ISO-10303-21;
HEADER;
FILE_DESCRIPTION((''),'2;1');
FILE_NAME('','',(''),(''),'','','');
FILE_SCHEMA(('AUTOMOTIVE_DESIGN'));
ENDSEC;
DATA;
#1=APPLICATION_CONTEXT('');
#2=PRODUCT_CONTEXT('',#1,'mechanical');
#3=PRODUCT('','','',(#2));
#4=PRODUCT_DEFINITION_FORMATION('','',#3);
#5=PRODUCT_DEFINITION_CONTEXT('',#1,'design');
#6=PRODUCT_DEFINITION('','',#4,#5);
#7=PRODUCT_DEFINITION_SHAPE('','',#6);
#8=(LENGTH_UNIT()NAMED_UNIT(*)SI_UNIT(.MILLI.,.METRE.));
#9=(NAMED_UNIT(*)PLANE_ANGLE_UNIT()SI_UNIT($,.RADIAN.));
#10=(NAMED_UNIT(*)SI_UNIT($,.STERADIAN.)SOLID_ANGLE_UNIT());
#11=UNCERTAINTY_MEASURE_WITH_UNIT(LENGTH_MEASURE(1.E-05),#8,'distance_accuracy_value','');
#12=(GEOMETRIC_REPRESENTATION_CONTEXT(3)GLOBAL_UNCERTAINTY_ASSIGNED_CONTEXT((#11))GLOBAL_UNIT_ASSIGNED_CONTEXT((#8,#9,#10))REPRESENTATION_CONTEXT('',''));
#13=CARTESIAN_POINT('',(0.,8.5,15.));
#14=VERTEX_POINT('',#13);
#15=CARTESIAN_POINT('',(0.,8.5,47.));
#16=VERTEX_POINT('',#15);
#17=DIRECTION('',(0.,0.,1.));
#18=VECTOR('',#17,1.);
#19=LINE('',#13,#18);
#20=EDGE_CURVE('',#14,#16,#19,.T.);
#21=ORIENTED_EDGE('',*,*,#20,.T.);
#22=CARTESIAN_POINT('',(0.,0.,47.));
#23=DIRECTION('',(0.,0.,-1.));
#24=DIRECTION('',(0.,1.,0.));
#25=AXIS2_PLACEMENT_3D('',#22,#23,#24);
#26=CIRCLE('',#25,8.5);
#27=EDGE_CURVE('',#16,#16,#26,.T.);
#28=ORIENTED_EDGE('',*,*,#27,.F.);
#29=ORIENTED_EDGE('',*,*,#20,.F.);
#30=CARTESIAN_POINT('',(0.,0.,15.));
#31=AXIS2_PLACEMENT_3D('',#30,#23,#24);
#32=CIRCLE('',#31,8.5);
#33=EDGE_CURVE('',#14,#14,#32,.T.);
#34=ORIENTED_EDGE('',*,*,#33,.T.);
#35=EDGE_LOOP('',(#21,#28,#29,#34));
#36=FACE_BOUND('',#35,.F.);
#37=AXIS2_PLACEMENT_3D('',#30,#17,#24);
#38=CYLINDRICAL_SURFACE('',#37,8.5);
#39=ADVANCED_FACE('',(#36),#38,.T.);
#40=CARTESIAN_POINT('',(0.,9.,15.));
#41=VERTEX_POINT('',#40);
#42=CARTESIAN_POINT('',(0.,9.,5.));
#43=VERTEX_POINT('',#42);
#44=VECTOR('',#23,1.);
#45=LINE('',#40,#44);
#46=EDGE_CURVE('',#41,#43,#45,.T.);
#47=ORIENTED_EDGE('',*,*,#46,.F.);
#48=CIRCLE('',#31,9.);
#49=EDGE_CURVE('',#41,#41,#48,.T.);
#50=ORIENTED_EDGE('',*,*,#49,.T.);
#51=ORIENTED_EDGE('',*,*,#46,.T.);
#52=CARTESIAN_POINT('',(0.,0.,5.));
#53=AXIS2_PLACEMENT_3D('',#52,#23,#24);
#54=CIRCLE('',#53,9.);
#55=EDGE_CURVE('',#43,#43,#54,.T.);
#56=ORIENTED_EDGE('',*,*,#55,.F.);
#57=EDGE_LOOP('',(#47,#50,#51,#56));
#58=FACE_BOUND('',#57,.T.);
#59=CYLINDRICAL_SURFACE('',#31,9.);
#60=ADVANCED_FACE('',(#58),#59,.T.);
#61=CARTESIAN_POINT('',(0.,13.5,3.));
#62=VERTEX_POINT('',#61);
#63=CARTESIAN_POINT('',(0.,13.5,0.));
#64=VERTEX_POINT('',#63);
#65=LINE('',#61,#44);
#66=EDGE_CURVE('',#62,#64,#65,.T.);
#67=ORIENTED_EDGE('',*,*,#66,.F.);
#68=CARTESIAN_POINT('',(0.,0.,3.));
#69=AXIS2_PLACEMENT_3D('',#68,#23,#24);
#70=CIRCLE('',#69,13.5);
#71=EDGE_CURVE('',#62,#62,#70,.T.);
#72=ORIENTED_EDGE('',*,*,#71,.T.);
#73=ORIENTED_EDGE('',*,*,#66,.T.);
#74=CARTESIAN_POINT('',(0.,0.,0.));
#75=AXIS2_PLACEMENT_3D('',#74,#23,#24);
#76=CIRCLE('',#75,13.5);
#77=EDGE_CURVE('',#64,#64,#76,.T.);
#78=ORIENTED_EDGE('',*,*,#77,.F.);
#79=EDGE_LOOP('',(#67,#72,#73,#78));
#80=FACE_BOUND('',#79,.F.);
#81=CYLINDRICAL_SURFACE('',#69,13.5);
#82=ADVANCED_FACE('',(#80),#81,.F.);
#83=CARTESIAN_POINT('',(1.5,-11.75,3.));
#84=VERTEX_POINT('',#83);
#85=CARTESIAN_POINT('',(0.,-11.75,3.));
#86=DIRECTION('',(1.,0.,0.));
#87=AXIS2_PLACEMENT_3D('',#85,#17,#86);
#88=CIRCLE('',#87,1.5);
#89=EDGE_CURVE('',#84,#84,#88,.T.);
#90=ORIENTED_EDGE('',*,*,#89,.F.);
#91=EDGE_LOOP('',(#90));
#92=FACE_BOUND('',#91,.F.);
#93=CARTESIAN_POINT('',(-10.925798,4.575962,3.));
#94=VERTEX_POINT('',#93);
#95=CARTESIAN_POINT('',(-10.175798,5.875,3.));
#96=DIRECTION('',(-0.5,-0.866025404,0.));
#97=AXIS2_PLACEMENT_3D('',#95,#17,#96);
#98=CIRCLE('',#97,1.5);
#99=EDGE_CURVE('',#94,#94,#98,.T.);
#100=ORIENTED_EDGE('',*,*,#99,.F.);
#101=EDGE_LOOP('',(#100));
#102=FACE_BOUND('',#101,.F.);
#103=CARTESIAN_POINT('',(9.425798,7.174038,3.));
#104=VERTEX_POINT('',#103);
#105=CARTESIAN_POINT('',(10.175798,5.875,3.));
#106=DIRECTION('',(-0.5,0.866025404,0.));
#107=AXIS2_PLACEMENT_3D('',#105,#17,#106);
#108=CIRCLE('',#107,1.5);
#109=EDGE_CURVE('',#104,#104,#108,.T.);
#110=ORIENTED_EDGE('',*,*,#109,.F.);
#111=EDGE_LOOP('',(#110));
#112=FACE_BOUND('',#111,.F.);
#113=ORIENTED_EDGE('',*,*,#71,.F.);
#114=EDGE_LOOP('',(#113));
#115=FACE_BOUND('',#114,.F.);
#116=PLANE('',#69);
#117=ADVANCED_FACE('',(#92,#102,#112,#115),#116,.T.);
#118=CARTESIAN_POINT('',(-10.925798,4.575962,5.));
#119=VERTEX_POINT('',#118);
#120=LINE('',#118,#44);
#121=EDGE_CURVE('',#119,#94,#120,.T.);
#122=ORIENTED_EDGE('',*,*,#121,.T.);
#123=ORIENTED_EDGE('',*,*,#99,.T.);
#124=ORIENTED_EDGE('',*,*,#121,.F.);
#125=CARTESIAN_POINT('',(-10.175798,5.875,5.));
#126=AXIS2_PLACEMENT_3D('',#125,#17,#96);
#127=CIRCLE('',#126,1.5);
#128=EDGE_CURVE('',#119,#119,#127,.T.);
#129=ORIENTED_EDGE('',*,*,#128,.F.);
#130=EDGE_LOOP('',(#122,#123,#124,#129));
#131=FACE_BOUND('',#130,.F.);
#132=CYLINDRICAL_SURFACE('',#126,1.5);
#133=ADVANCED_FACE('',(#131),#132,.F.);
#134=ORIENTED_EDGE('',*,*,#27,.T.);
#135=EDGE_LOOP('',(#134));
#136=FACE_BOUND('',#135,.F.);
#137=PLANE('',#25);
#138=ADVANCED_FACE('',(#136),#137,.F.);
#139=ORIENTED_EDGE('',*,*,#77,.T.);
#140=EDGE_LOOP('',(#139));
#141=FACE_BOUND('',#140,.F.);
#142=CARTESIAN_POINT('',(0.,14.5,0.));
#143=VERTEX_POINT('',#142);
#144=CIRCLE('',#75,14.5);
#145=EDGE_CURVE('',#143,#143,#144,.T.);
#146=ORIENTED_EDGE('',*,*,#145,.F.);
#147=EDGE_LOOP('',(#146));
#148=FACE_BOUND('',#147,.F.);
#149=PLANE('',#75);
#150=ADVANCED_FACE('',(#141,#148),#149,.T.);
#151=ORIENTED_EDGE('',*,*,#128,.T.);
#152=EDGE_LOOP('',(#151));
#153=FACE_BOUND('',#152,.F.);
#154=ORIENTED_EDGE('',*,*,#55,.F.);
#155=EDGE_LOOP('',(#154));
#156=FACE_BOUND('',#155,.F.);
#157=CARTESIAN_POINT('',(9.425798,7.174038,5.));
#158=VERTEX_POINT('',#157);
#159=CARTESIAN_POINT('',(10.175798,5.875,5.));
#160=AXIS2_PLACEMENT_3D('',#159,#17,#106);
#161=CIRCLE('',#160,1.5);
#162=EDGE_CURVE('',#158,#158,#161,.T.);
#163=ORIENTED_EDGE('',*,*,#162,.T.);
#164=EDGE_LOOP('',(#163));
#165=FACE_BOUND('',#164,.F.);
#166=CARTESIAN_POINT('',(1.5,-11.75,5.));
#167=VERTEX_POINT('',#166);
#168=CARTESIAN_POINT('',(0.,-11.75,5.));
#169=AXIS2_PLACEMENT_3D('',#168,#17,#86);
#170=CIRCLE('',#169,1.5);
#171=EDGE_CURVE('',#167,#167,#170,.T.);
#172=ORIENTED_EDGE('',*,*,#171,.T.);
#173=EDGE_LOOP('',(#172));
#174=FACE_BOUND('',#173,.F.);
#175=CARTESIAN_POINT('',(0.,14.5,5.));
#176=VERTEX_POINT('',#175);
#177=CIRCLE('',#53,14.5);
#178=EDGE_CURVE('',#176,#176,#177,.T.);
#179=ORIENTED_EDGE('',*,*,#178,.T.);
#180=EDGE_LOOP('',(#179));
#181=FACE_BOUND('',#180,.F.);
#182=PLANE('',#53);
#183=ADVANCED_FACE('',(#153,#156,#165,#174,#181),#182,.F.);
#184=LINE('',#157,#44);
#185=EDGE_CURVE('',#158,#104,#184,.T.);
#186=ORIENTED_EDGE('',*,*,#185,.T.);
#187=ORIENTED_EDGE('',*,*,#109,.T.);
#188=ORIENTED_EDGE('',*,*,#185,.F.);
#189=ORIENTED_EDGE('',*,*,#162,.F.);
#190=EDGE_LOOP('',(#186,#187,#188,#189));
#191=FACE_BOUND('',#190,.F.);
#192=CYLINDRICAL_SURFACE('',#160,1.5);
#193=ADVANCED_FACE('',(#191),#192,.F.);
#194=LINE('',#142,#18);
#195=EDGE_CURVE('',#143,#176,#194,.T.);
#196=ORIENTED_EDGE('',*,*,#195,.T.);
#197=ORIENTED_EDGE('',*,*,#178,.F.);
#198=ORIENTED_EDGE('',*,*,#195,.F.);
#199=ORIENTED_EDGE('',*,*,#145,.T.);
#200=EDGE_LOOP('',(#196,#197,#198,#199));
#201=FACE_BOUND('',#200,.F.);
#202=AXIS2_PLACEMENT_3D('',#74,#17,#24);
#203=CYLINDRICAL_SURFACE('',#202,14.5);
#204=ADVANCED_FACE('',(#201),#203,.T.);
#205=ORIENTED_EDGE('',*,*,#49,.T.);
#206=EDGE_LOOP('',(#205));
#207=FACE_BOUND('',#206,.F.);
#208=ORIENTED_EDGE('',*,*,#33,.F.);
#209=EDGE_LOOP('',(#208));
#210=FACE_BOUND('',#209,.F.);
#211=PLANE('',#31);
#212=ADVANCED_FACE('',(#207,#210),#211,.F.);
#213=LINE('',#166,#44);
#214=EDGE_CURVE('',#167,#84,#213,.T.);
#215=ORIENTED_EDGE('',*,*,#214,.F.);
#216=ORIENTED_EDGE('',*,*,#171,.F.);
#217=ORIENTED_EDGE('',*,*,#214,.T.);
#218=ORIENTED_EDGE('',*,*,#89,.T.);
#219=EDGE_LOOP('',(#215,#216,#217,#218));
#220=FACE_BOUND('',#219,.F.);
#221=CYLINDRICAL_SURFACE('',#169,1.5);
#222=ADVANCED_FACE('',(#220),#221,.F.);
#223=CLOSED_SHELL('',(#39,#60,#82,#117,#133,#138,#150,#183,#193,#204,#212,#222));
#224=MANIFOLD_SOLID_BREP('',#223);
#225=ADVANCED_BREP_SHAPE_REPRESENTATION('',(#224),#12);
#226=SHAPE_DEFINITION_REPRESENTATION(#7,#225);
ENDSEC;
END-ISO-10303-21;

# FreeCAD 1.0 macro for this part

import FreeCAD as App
import Part
import Sketcher
from FreeCAD import Vector
Q = App.Units.Quantity


def add_polygon(sketch, points):
    """Adds a closed chain of lines whose ends are joined by coincident constraints."""
    first, n = sketch.GeometryCount, len(points)
    for a, b in zip(points, points[1:] + points[:1]):
        sketch.addGeometry(Part.LineSegment(App.Vector(*a, 0), App.Vector(*b, 0)), False)
    for i in range(n):
        sketch.addConstraint(Sketcher.Constraint("Coincident", first + i, 2, first + (i + 1) % n, 1))

doc = App.newDocument("Part")
body = doc.addObject("PartDesign::Body", "Body")

# Sketch on YZ plane
sketch1 = body.newObject("Sketcher::SketchObject", "Sketch")
sketch1.AttachmentSupport = (doc.getObject("YZ_Plane"), [""])
sketch1.MapMode = "FlatFace"
add_polygon(sketch1, [(0, 3), (13.5, 3), (13.5, 0), (14.5, 0), (14.5, 5), (9, 5), (9, 15), (8.5, 15), (8.5, 47), (0, 47)])  # lines 0-9
sketch1.addConstraint([
    Sketcher.Constraint("Horizontal", 0),
    Sketcher.Constraint("Vertical", 1),
    Sketcher.Constraint("Horizontal", 2),
    Sketcher.Constraint("Vertical", 3),
    Sketcher.Constraint("Horizontal", 4),
    Sketcher.Constraint("Vertical", 5),
    Sketcher.Constraint("Horizontal", 6),
    Sketcher.Constraint("Vertical", 7),
    Sketcher.Constraint("Horizontal", 8),
    Sketcher.Constraint("Vertical", 9),
    Sketcher.Constraint("PointOnObject", 1, 2, -1),
    Sketcher.Constraint("PointOnObject", 8, 2, -2),
    Sketcher.Constraint("DistanceX", 2, 1, 2, 2, Q("1 mm")),
    Sketcher.Constraint("DistanceY", 1, 2, 1, 1, Q("3 mm")),
    Sketcher.Constraint("DistanceY", 3, 1, 3, 2, Q("5 mm")),
    Sketcher.Constraint("DistanceY", 5, 1, 5, 2, Q("10 mm")),
    Sketcher.Constraint("DistanceY", 7, 1, 7, 2, Q("32 mm")),
    Sketcher.Constraint("DistanceX", 0, 1, 0, 2, Q("13.5 mm")),
    Sketcher.Constraint("DistanceX", 8, 2, 8, 1, Q("8.5 mm")),
    Sketcher.Constraint("DistanceX", -1, 1, 4, 2, Q("9 mm")),
])
revolution = body.newObject("PartDesign::Revolution", "Revolution")
revolution.Profile = sketch1
revolution.ReferenceAxis = (sketch1, ["V_Axis"])
revolution.Angle = 360

# Sketch on XY plane
sketch2 = body.newObject("Sketcher::SketchObject", "Sketch001")
sketch2.AttachmentSupport = (doc.getObject("XY_Plane"), [""])
sketch2.MapMode = "FlatFace"
sketch2.AttachmentOffset = App.Placement(Vector(0, 0, 5), App.Rotation())
sketch2.addGeometry(Part.Circle(Vector(0, -11.8, 0), Vector(0, 0, 1), 1.5), False)
sketch2.addConstraint([
    Sketcher.Constraint("PointOnObject", 0, 3, -2),
    Sketcher.Constraint("Diameter", 0, Q("3 mm")),
    Sketcher.Constraint("DistanceY", 0, 3, -1, 1, Q("11.75 mm")),
])
pocket1 = body.newObject("PartDesign::Pocket", "Pocket")
pocket1.Profile = sketch2
pocket1.Length = 4
doc.recompute()

polarpattern = body.newObject("PartDesign::PolarPattern", "PolarPattern")
polarpattern.Originals = [pocket1]
polarpattern.Axis = (doc.getObject("Z_Axis"), [""])
polarpattern.Angle = 360
polarpattern.Occurrences = 3
body.Tip = polarpattern

doc.recompute()
